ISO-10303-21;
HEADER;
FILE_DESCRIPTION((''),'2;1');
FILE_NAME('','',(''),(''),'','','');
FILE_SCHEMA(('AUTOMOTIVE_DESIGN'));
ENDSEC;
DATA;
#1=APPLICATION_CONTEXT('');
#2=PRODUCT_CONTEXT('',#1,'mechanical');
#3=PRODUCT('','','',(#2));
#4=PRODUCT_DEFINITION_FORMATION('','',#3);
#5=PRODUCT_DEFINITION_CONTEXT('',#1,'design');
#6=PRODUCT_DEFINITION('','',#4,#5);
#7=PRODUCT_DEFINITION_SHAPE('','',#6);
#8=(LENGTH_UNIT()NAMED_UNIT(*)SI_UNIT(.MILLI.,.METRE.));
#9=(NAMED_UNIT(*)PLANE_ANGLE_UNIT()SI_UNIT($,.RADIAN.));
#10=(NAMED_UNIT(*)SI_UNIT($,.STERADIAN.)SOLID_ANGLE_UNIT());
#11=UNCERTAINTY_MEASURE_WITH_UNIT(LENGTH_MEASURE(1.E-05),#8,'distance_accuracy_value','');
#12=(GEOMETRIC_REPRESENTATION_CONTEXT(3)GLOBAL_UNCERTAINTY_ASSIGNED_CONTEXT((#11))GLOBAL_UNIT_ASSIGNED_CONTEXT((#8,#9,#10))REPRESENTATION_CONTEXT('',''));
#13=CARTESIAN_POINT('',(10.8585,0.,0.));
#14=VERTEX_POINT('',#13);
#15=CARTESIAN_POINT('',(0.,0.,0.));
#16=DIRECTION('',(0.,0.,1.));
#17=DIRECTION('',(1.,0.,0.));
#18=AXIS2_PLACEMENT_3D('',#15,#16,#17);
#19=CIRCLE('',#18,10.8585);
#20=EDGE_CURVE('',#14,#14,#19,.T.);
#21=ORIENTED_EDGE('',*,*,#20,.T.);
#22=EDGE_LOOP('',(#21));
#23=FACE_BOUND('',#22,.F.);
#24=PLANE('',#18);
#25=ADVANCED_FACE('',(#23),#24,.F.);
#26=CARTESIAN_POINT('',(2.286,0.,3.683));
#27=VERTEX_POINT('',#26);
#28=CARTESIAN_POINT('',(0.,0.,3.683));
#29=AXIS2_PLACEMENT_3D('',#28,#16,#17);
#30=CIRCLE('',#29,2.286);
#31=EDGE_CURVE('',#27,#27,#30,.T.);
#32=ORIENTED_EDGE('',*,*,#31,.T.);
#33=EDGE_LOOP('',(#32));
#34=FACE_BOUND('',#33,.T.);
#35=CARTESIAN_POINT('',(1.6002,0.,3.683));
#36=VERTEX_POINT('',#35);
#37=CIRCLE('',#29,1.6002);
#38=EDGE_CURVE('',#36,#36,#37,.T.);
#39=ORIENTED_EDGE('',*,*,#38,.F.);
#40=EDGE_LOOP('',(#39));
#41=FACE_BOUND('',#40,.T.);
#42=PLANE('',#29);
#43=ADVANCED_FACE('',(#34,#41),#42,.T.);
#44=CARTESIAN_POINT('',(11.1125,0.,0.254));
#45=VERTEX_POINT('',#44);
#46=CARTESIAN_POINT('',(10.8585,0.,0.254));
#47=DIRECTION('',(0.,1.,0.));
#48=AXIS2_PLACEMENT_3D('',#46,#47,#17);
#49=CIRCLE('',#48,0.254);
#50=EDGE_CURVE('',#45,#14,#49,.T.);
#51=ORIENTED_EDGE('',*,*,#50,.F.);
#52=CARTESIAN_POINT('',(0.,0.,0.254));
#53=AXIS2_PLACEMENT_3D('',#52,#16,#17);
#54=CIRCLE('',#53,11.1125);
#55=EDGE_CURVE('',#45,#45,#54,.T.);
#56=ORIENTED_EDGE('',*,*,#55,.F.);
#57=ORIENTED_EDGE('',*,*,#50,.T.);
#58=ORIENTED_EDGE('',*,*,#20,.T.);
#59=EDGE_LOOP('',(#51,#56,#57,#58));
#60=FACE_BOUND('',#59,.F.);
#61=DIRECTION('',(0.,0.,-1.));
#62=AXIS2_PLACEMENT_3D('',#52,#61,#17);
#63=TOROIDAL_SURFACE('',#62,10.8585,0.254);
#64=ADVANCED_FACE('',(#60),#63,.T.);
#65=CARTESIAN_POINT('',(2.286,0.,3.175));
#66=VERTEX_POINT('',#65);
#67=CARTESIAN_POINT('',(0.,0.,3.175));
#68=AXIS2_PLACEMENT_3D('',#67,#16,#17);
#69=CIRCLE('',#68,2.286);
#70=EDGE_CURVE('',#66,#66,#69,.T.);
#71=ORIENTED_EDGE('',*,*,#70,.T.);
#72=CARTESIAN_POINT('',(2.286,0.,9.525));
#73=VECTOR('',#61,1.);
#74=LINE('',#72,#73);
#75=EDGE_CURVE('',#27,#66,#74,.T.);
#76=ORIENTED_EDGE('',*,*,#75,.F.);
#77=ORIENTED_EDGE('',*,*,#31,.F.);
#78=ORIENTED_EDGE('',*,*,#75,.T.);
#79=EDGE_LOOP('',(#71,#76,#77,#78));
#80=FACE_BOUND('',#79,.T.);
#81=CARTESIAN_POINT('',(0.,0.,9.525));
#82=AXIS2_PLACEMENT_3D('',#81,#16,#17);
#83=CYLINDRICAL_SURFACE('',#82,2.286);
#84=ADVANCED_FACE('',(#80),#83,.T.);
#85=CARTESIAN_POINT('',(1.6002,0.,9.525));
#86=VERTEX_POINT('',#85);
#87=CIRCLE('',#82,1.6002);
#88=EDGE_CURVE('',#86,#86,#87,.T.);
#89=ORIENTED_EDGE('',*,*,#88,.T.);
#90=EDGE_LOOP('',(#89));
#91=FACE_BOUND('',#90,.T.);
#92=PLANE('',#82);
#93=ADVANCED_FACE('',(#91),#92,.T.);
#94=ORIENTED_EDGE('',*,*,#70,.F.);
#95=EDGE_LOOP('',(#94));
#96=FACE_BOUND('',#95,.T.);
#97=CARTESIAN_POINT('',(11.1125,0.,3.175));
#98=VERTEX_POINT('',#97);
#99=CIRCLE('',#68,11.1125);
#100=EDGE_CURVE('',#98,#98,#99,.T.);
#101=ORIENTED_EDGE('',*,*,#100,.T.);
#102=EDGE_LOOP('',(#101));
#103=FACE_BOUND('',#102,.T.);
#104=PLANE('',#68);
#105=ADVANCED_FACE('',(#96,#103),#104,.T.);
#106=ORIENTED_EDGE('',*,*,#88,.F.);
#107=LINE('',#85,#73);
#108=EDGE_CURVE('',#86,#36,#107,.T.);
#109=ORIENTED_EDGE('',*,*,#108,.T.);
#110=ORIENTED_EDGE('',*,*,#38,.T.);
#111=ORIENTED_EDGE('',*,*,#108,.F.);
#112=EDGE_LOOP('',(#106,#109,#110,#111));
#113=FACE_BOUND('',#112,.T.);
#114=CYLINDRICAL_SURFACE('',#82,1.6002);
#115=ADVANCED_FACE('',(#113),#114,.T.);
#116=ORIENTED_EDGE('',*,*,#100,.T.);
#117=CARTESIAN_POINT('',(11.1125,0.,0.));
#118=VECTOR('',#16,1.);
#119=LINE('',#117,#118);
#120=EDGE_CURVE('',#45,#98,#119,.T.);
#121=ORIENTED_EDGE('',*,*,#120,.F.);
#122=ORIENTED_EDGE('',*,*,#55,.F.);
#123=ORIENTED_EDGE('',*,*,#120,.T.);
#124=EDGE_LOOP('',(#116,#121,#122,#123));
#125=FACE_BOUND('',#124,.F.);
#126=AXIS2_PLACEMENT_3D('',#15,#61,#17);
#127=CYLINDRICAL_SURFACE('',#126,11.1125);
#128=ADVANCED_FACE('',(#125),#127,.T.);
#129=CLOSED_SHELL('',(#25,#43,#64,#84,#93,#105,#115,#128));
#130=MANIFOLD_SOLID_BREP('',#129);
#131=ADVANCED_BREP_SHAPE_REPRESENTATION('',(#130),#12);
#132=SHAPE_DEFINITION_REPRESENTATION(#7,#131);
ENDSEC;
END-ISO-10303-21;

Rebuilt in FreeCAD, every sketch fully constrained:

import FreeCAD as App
import Part
import Sketcher
Q = App.Units.Quantity


def edges_at(feature, points):
    """Names of the edges that pass closest to the given points."""
    edges = feature.Shape.Edges
    near = lambda p: min(range(len(edges)), key=lambda i: edges[i].distToShape(Part.Vertex(*p))[0])
    return sorted({f"Edge{near(p) + 1}" for p in points})

doc = App.newDocument("Part")
params = doc.addObject("Spreadsheet::Sheet", "Params")
for row, (alias, value) in enumerate([
    ("sketch1_diameter", "0.126 in"),
    ("pad1_length", "0.375 in"),
    ("sketch2_diameter", "0.875 in"),
    ("sketch2_diameter2", "0.126 in"),
    ("pad2_length", "0.125 in"),
    ("fillet_radius", "0.01 in"),
    ("sketch3_diameter", "0.18 in"),
    ("sketch3_diameter2", "0.126 in"),
    ("pad3_length", "0.25 in"),
    ("sketch4_diameter", "0.18 in"),
    ("sketch4_diameter2", "0.126 in"),
    ("pocket1_length", "0.23 in"),
], start=1):
    params.set(f"A{row}", alias)
    params.set(f"B{row}", "=" + value)
    params.setAlias(f"B{row}", alias)

body = doc.addObject("PartDesign::Body", "Body")

# Sketch on XY plane
sketch1 = body.newObject("Sketcher::SketchObject", "Sketch")
sketch1.AttachmentSupport = (doc.getObject("XY_Plane"), [""])
sketch1.MapMode = "FlatFace"
sketch1.addGeometry(Part.Circle(App.Vector(0, 0, 0), App.Vector(0, 0, 1), 1.6002), False)
sketch1.addConstraint([
    Sketcher.Constraint("Coincident", 0, 3, -1, 1),
    Sketcher.Constraint("Diameter", 0, Q("0.126 in")),
])
sketch1.setExpression("Constraints[1]", "Params.sketch1_diameter")
pad1 = body.newObject("PartDesign::Pad", "Pad")
pad1.Profile = sketch1
pad1.setExpression("Length", "Params.pad1_length")

# Sketch on XY plane
sketch2 = body.newObject("Sketcher::SketchObject", "Sketch001")
sketch2.AttachmentSupport = (doc.getObject("XY_Plane"), [""])
sketch2.MapMode = "FlatFace"
sketch2.addGeometry([
    Part.Circle(App.Vector(0, 0, 0), App.Vector(0, 0, 1), 11.1125),
    Part.Circle(App.Vector(0, 0, 0), App.Vector(0, 0, 1), 1.6002),
], False)
sketch2.addConstraint([
    Sketcher.Constraint("Coincident", 0, 3, -1, 1),
    Sketcher.Constraint("Coincident", 1, 3, -1, 1),
    Sketcher.Constraint("Diameter", 0, Q("0.875 in")),
    Sketcher.Constraint("Diameter", 1, Q("0.126 in")),
])
sketch2.setExpression("Constraints[2]", "Params.sketch2_diameter")
sketch2.setExpression("Constraints[3]", "Params.sketch2_diameter2")
pad2 = body.newObject("PartDesign::Pad", "Pad001")
pad2.Profile = sketch2
pad2.setExpression("Length", "Params.pad2_length")
doc.recompute()

fillet = body.newObject("PartDesign::Fillet", "Fillet")
fillet.Base = (pad2, edges_at(pad2, [(-11.113, 0, 0)]))
fillet.setExpression("Radius", "Params.fillet_radius")

# Sketch on XY plane
sketch3 = body.newObject("Sketcher::SketchObject", "Sketch002")
sketch3.AttachmentSupport = (doc.getObject("XY_Plane"), [""])
sketch3.MapMode = "FlatFace"
sketch3.AttachmentOffset = App.Placement(App.Vector(0, 0, 0.375 * 25.4), App.Rotation())
sketch3.addGeometry([
    Part.Circle(App.Vector(0, 0, 0), App.Vector(0, 0, 1), 2.286),
    Part.Circle(App.Vector(0, 0, 0), App.Vector(0, 0, 1), 1.6002),
], False)
sketch3.addConstraint([
    Sketcher.Constraint("Coincident", 0, 3, -1, 1),
    Sketcher.Constraint("Coincident", 1, 3, -1, 1),
    Sketcher.Constraint("Diameter", 0, Q("0.18 in")),
    Sketcher.Constraint("Diameter", 1, Q("0.126 in")),
])
sketch3.setExpression("Constraints[2]", "Params.sketch3_diameter")
sketch3.setExpression("Constraints[3]", "Params.sketch3_diameter2")
pad3 = body.newObject("PartDesign::Pad", "Pad002")
pad3.Profile = sketch3
pad3.setExpression("Length", "Params.pad3_length")
pad3.Reversed = True

# Sketch on XY plane
sketch4 = body.newObject("Sketcher::SketchObject", "Sketch003")
sketch4.AttachmentSupport = (doc.getObject("XY_Plane"), [""])
sketch4.MapMode = "FlatFace"
sketch4.AttachmentOffset = App.Placement(App.Vector(0, 0, 0.375 * 25.4), App.Rotation())
sketch4.addGeometry([
    Part.Circle(App.Vector(0, 0, 0), App.Vector(0, 0, 1), 2.286),
    Part.Circle(App.Vector(0, 0, 0), App.Vector(0, 0, 1), 1.6002),
], False)
sketch4.addConstraint([
    Sketcher.Constraint("Coincident", 0, 3, -1, 1),
    Sketcher.Constraint("Coincident", 1, 3, -1, 1),
    Sketcher.Constraint("Diameter", 0, Q("0.18 in")),
    Sketcher.Constraint("Diameter", 1, Q("0.126 in")),
])
sketch4.setExpression("Constraints[2]", "Params.sketch4_diameter")
sketch4.setExpression("Constraints[3]", "Params.sketch4_diameter2")
pocket1 = body.newObject("PartDesign::Pocket", "Pocket")
pocket1.Profile = sketch4
pocket1.setExpression("Length", "Params.pocket1_length")

doc.recompute()
